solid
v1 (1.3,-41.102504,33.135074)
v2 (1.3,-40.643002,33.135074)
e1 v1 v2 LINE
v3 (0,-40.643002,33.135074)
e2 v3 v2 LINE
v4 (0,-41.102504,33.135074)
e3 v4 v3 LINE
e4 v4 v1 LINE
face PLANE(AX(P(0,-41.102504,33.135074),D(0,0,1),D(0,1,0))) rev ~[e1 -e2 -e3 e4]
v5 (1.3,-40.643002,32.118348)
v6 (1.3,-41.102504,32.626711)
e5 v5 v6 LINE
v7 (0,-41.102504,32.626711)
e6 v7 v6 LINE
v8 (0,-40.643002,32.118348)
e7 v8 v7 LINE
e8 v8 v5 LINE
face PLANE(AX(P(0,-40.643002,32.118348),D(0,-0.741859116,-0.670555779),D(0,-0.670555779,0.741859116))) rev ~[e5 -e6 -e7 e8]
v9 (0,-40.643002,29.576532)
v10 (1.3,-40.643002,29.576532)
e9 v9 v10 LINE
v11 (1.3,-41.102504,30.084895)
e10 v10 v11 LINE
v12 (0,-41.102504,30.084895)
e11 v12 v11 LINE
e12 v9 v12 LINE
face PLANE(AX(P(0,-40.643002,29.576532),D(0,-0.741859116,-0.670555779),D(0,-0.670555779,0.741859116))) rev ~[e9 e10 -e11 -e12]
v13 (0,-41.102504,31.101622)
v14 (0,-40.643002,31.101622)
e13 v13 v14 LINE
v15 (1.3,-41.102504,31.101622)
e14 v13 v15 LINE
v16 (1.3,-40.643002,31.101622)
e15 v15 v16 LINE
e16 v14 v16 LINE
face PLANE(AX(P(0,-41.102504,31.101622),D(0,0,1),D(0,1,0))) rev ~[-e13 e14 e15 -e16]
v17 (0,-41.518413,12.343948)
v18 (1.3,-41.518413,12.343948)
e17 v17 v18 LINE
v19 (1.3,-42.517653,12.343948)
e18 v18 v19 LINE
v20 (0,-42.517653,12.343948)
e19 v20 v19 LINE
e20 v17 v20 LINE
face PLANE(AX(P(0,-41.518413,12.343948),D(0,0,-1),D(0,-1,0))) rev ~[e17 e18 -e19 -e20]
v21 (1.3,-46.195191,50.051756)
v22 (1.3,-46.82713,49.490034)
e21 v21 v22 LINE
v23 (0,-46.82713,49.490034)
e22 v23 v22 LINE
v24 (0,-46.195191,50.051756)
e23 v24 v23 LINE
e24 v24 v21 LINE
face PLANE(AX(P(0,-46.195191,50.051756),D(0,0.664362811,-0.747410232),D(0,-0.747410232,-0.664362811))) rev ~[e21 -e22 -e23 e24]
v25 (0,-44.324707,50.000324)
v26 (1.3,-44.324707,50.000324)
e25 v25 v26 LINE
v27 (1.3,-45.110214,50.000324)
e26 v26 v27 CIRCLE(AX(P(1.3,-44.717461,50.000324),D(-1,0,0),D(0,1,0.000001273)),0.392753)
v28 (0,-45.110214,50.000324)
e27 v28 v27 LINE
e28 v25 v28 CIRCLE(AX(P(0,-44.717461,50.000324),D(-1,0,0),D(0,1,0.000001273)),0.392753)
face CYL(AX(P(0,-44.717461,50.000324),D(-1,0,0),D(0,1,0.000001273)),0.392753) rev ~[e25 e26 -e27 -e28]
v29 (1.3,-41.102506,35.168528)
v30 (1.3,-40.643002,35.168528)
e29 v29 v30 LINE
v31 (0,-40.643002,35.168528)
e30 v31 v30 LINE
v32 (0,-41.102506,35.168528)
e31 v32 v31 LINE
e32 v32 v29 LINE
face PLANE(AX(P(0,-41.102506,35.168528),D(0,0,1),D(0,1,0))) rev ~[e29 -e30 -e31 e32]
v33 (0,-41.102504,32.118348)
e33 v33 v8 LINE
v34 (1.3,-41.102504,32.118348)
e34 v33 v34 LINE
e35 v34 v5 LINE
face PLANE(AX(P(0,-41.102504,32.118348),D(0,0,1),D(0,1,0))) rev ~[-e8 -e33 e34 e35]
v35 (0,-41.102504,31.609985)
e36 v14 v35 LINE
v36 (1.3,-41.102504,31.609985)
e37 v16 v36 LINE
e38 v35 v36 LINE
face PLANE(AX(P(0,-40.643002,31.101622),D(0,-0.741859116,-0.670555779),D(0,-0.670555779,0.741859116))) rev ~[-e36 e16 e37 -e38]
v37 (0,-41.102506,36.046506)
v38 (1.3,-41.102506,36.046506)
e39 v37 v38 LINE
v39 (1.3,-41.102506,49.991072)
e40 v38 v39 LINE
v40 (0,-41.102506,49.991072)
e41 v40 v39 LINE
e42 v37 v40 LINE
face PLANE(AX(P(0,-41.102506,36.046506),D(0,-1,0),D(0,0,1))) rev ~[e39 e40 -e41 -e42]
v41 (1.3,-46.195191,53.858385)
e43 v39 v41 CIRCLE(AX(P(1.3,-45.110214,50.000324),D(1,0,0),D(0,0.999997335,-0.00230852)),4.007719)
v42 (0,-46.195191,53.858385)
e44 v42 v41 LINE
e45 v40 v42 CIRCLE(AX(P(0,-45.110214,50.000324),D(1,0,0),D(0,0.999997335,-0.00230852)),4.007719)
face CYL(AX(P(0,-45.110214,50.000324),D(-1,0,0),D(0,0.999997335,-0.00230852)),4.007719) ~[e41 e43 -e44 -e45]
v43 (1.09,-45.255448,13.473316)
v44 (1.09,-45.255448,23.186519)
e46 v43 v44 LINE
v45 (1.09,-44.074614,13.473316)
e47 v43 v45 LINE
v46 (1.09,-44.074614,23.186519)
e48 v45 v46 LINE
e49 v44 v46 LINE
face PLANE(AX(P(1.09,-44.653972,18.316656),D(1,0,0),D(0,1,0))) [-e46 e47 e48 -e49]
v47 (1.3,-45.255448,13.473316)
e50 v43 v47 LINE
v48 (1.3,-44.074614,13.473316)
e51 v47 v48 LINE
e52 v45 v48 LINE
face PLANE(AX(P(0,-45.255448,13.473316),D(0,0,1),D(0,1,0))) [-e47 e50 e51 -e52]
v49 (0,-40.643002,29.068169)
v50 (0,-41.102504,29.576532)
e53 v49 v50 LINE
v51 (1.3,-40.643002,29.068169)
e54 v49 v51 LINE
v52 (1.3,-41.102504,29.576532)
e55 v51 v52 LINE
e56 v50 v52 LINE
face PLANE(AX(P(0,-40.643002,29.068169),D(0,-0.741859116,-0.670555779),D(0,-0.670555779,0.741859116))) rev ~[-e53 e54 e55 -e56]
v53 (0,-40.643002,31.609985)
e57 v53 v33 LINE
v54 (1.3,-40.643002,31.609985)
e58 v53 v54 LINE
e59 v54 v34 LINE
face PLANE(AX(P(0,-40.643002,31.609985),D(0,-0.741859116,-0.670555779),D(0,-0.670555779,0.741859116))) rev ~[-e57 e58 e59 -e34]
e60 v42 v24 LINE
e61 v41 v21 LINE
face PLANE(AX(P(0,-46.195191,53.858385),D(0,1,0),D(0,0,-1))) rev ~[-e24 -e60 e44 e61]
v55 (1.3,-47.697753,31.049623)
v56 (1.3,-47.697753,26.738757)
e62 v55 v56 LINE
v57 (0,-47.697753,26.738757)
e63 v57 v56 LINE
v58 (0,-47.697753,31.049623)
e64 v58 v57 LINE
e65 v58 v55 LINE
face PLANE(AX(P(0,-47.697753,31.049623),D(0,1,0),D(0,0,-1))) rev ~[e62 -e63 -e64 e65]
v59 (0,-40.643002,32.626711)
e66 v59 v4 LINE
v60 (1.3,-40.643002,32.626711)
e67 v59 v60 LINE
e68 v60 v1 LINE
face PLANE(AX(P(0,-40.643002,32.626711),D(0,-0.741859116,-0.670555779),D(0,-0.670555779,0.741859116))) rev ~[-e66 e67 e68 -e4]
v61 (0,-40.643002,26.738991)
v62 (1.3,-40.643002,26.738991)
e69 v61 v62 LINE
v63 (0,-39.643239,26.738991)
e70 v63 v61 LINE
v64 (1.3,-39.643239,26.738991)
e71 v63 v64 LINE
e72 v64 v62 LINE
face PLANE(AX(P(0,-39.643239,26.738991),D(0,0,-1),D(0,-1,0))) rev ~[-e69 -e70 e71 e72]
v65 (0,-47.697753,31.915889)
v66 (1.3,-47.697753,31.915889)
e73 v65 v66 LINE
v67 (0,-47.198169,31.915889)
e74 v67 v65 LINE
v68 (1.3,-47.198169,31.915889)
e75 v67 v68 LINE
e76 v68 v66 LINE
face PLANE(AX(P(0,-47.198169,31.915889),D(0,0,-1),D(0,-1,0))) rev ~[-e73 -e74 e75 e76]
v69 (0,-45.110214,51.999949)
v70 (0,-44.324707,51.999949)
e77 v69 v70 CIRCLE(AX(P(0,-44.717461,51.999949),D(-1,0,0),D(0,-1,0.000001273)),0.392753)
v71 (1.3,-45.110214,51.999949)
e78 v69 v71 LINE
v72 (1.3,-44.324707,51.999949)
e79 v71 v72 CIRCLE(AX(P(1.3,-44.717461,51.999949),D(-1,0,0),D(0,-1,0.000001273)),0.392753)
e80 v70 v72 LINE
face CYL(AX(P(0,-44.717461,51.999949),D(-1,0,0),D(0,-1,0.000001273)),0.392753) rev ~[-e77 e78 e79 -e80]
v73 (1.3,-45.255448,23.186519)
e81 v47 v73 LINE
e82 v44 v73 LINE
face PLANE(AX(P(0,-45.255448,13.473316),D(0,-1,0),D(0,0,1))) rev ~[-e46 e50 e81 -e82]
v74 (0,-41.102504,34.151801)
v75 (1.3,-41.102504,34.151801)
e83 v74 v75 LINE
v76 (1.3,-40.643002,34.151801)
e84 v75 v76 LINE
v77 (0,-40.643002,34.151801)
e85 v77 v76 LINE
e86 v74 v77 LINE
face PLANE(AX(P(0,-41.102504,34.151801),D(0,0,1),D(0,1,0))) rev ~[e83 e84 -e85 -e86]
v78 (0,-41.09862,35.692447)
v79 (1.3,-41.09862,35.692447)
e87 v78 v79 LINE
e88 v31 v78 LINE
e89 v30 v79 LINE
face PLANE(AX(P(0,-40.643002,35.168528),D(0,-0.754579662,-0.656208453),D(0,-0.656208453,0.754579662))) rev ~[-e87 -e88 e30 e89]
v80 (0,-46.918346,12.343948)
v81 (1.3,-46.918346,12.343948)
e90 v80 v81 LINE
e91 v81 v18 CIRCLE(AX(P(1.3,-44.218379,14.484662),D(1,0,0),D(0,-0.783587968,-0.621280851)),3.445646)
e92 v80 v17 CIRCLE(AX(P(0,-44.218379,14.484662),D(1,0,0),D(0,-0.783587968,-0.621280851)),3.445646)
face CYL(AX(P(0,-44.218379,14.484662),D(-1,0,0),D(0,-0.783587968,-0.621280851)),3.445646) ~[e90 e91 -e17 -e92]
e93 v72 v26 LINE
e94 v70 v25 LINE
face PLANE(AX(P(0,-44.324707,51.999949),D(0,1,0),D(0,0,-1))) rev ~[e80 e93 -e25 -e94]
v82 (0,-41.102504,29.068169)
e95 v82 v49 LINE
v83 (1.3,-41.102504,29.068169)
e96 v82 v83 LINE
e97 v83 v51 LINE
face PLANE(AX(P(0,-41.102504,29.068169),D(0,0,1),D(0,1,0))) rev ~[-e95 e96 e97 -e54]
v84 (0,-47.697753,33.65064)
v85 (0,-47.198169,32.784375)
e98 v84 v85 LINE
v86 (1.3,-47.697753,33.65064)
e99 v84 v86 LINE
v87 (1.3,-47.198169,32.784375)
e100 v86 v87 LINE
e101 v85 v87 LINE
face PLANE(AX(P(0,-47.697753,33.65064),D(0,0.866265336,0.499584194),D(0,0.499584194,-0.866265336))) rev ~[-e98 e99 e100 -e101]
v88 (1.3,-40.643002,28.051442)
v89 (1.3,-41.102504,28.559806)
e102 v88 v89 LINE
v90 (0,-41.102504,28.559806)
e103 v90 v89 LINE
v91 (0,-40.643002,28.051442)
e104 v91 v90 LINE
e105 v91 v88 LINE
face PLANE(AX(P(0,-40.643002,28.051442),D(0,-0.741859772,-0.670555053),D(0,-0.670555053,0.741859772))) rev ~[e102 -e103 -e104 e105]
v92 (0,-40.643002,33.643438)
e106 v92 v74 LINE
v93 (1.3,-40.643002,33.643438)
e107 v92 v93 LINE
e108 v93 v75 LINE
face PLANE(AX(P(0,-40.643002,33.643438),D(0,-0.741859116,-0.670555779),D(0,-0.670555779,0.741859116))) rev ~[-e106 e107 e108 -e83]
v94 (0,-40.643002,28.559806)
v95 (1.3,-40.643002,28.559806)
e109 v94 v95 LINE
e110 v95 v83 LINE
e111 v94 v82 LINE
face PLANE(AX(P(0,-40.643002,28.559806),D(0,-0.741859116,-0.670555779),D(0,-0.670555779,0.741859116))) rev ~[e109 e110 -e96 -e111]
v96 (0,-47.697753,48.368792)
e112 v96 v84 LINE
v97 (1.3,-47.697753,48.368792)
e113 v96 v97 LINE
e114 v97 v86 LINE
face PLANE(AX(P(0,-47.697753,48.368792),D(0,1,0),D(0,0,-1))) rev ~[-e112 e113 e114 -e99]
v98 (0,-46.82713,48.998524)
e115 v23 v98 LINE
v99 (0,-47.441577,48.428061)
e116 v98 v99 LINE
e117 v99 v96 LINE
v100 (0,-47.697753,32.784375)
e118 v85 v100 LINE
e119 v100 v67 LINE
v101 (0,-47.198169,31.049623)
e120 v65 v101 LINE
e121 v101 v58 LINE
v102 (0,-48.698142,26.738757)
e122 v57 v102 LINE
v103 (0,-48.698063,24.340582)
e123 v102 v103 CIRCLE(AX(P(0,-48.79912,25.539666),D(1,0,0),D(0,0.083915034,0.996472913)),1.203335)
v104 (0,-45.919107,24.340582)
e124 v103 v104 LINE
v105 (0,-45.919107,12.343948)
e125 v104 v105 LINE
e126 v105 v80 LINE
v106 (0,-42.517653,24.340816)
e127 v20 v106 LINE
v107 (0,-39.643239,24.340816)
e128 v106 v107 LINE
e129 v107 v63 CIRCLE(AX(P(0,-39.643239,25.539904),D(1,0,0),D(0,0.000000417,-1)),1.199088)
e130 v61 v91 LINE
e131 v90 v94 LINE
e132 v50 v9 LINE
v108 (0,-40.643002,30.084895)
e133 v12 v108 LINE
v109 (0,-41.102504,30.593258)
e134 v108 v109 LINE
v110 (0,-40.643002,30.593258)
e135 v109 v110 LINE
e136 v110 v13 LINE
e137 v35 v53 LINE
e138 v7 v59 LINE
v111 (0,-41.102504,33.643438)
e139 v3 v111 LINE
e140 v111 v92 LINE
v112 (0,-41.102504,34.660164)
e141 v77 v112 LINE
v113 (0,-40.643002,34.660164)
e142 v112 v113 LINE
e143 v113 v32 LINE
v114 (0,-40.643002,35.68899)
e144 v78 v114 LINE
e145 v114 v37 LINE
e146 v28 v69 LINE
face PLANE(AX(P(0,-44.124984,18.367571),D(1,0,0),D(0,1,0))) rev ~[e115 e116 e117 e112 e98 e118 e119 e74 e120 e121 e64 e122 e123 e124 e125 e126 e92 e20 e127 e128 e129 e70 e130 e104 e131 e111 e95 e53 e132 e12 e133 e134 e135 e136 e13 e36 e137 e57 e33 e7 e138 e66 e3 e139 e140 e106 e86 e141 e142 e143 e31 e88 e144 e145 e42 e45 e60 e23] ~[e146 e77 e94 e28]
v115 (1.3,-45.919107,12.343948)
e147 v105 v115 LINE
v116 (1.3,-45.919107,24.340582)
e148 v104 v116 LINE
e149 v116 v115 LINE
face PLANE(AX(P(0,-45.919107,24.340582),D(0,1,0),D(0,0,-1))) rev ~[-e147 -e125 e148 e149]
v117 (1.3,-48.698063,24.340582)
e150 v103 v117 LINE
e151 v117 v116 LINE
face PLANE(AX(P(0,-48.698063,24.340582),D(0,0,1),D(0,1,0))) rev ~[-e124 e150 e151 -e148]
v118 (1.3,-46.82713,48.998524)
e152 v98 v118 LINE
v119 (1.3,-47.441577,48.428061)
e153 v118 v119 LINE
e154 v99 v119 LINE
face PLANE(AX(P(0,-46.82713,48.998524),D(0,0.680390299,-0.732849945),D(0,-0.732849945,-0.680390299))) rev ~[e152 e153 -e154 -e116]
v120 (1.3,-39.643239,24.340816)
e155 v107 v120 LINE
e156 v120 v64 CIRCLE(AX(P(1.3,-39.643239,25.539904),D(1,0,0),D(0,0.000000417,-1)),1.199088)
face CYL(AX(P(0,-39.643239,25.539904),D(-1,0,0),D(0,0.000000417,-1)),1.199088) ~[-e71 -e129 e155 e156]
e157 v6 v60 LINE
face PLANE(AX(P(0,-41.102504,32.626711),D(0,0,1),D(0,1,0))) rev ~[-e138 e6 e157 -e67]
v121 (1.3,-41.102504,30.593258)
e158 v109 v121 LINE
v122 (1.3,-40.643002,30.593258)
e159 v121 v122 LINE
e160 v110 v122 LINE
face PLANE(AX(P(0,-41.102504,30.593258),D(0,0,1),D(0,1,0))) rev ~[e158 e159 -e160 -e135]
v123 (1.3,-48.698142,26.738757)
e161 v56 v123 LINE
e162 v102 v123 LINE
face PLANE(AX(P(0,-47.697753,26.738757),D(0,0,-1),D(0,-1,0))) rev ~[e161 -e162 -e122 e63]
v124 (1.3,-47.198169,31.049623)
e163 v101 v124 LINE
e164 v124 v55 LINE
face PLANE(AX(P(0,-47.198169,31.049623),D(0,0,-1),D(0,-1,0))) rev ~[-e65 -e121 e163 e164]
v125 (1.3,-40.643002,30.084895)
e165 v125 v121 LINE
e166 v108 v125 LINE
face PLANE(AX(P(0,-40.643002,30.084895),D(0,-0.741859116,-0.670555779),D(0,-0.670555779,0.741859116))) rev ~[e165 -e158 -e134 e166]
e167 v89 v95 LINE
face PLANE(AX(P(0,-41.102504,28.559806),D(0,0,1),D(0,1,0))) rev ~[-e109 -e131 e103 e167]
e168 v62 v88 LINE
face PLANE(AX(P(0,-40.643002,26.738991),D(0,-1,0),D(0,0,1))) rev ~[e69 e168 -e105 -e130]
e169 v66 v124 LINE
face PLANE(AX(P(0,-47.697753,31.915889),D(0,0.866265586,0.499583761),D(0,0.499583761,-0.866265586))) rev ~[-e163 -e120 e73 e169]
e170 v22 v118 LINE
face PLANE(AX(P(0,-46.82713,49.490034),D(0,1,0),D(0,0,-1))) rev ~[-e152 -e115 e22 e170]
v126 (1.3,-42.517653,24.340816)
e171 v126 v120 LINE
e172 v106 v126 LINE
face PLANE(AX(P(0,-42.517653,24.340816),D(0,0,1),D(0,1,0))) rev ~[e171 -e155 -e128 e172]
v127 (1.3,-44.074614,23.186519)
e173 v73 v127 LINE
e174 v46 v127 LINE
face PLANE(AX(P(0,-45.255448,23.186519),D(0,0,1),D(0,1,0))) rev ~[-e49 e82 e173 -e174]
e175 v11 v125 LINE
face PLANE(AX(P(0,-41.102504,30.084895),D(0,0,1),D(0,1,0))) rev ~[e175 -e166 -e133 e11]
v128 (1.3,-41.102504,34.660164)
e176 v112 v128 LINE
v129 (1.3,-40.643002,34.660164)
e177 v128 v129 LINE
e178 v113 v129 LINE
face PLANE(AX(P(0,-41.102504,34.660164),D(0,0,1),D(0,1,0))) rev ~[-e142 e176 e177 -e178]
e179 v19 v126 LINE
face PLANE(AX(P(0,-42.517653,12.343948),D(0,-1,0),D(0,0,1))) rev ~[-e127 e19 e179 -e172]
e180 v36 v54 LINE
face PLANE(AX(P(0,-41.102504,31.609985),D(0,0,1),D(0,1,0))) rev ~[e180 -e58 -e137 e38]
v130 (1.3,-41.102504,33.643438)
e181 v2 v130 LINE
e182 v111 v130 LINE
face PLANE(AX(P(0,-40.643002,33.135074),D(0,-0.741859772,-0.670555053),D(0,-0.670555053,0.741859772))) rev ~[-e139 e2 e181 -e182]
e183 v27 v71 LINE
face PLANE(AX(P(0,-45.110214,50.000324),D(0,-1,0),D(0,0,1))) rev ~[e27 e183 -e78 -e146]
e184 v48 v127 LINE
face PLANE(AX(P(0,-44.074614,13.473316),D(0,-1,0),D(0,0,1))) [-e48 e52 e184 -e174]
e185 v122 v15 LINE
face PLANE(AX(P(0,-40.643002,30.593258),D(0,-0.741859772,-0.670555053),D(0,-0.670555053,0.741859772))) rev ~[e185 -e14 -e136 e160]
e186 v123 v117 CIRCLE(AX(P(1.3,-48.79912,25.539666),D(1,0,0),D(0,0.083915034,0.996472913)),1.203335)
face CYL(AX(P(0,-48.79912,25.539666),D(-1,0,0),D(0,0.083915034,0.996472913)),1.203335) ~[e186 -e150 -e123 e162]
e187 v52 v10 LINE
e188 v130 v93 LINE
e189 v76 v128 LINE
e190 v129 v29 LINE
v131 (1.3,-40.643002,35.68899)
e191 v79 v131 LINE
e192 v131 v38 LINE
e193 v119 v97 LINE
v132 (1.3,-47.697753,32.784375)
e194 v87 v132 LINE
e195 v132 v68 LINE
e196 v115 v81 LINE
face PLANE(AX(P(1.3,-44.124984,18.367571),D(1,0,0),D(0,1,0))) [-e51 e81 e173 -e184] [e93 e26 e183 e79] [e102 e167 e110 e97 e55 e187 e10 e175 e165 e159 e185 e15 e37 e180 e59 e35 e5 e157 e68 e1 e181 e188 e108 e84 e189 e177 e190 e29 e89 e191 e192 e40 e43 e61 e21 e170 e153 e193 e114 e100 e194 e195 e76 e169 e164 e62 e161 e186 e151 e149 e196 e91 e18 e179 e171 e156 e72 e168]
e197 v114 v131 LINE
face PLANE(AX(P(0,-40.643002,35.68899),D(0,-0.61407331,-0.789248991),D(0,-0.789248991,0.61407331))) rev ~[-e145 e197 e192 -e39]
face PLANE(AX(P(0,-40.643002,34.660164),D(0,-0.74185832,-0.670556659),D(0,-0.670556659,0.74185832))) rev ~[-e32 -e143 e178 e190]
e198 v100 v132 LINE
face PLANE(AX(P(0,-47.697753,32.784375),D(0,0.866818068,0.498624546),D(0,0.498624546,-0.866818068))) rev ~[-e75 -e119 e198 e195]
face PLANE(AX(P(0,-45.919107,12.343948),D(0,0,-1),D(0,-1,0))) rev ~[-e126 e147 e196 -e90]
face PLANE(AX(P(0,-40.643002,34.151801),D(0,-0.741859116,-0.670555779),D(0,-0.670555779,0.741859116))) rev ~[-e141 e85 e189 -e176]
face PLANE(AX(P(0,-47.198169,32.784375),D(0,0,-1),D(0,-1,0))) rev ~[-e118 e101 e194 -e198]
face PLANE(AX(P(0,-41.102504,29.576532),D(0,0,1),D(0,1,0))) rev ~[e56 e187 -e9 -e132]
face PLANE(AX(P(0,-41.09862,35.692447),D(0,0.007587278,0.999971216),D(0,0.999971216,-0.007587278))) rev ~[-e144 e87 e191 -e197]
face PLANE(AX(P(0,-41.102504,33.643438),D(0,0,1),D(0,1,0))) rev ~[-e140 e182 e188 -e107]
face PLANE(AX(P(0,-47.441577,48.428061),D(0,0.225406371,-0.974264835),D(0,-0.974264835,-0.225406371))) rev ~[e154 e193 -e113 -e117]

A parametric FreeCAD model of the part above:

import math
import FreeCAD as App
import Part
import Sketcher
from FreeCAD import Vector
Q = App.Units.Quantity


def add_polygon(sketch, points):
    """Adds a closed chain of lines whose ends are joined by coincident constraints."""
    first, n = sketch.GeometryCount, len(points)
    for a, b in zip(points, points[1:] + points[:1]):
        sketch.addGeometry(Part.LineSegment(App.Vector(*a, 0), App.Vector(*b, 0)), False)
    for i in range(n):
        sketch.addConstraint(Sketcher.Constraint("Coincident", first + i, 2, first + (i + 1) % n, 1))

doc = App.newDocument("Part")
body = doc.addObject("PartDesign::Body", "Body")

sketch1 = body.newObject("Sketcher::SketchObject", "Sketch")
sketch1.AttachmentSupport = (doc.getObject("YZ_Plane"), [""])
sketch1.MapMode = "FlatFace"
sketch1.addGeometry(Part.LineSegment(Vector(-42.517653, 24.340816, 0), Vector(-39.643239, 24.340816, 0)), False)
sketch1.addGeometry(Part.ArcOfCircle(Part.Circle(Vector(-39.643239, 25.539904, 0), Vector(0, 0, 1), 1.199088), math.radians(-89.999976), math.radians(89.999976)), False)
sketch1.addGeometry(Part.LineSegment(Vector(-39.643239, 26.738991, 0), Vector(-40.643002, 26.738991, 0)), False)
sketch1.addGeometry(Part.LineSegment(Vector(-40.643002, 26.738991, 0), Vector(-40.643002, 28.051442, 0)), False)
sketch1.addGeometry(Part.LineSegment(Vector(-40.643002, 28.051442, 0), Vector(-41.102504, 28.559806, 0)), False)
sketch1.addGeometry(Part.LineSegment(Vector(-41.102504, 28.559806, 0), Vector(-40.643002, 28.559806, 0)), False)
sketch1.addGeometry(Part.LineSegment(Vector(-40.643002, 28.559806, 0), Vector(-41.102504, 29.068169, 0)), False)
sketch1.addGeometry(Part.LineSegment(Vector(-41.102504, 29.068169, 0), Vector(-40.643002, 29.068169, 0)), False)
sketch1.addGeometry(Part.LineSegment(Vector(-40.643002, 29.068169, 0), Vector(-41.102504, 29.576532, 0)), False)
sketch1.addGeometry(Part.LineSegment(Vector(-41.102504, 29.576532, 0), Vector(-40.643002, 29.576532, 0)), False)
sketch1.addGeometry(Part.LineSegment(Vector(-40.643002, 29.576532, 0), Vector(-41.102504, 30.084895, 0)), False)
sketch1.addGeometry(Part.LineSegment(Vector(-41.102504, 30.084895, 0), Vector(-40.643002, 30.084895, 0)), False)
sketch1.addGeometry(Part.LineSegment(Vector(-40.643002, 30.084895, 0), Vector(-41.102504, 30.593258, 0)), False)
sketch1.addGeometry(Part.LineSegment(Vector(-41.102504, 30.593258, 0), Vector(-40.643002, 30.593258, 0)), False)
sketch1.addGeometry(Part.LineSegment(Vector(-40.643002, 30.593258, 0), Vector(-41.102504, 31.101622, 0)), False)
sketch1.addGeometry(Part.LineSegment(Vector(-41.102504, 31.101622, 0), Vector(-40.643002, 31.101622, 0)), False)
sketch1.addGeometry(Part.LineSegment(Vector(-40.643002, 31.101622, 0), Vector(-41.102504, 31.609985, 0)), False)
sketch1.addGeometry(Part.LineSegment(Vector(-41.102504, 31.609985, 0), Vector(-40.643002, 31.609985, 0)), False)
sketch1.addGeometry(Part.LineSegment(Vector(-40.643002, 31.609985, 0), Vector(-41.102504, 32.118348, 0)), False)
sketch1.addGeometry(Part.LineSegment(Vector(-41.102504, 32.118348, 0), Vector(-40.643002, 32.118348, 0)), False)
sketch1.addGeometry(Part.LineSegment(Vector(-40.643002, 32.118348, 0), Vector(-41.102504, 32.626711, 0)), False)
sketch1.addGeometry(Part.LineSegment(Vector(-41.102504, 32.626711, 0), Vector(-40.643002, 32.626711, 0)), False)
sketch1.addGeometry(Part.LineSegment(Vector(-40.643002, 32.626711, 0), Vector(-41.102504, 33.135074, 0)), False)
sketch1.addGeometry(Part.LineSegment(Vector(-41.102504, 33.135074, 0), Vector(-40.643002, 33.135074, 0)), False)
sketch1.addGeometry(Part.LineSegment(Vector(-40.643002, 33.135074, 0), Vector(-41.102504, 33.643438, 0)), False)
sketch1.addGeometry(Part.LineSegment(Vector(-41.102504, 33.643438, 0), Vector(-40.643002, 33.643438, 0)), False)
sketch1.addGeometry(Part.LineSegment(Vector(-40.643002, 33.643438, 0), Vector(-41.102504, 34.151801, 0)), False)
sketch1.addGeometry(Part.LineSegment(Vector(-41.102504, 34.151801, 0), Vector(-40.643002, 34.151801, 0)), False)
sketch1.addGeometry(Part.LineSegment(Vector(-40.643002, 34.151801, 0), Vector(-41.102504, 34.660164, 0)), False)
sketch1.addGeometry(Part.LineSegment(Vector(-41.102504, 34.660164, 0), Vector(-40.643002, 34.660164, 0)), False)
sketch1.addGeometry(Part.LineSegment(Vector(-40.643002, 34.660164, 0), Vector(-41.102506, 35.168528, 0)), False)
sketch1.addGeometry(Part.LineSegment(Vector(-41.102506, 35.168528, 0), Vector(-40.643002, 35.168528, 0)), False)
sketch1.addGeometry(Part.LineSegment(Vector(-40.643002, 35.168528, 0), Vector(-41.09862, 35.692447, 0)), False)
sketch1.addGeometry(Part.LineSegment(Vector(-41.09862, 35.692447, 0), Vector(-40.643002, 35.68899, 0)), False)
sketch1.addGeometry(Part.LineSegment(Vector(-40.643002, 35.68899, 0), Vector(-41.102506, 36.046506, 0)), False)
sketch1.addGeometry(Part.LineSegment(Vector(-41.102506, 36.046506, 0), Vector(-41.102506, 49.991072, 0)), False)
sketch1.addGeometry(Part.ArcOfCircle(Part.Circle(Vector(-45.110214, 50.000324, 0), Vector(0, 0, 1), 4.007719), math.radians(-0.132269), math.radians(105.707223)), False)
sketch1.addGeometry(Part.LineSegment(Vector(-46.195191, 53.858385, 0), Vector(-46.195191, 50.051756, 0)), False)
sketch1.addGeometry(Part.LineSegment(Vector(-46.195191, 50.051756, 0), Vector(-46.82713, 49.490034, 0)), False)
sketch1.addGeometry(Part.LineSegment(Vector(-46.82713, 49.490034, 0), Vector(-46.82713, 48.998524, 0)), False)
sketch1.addGeometry(Part.LineSegment(Vector(-46.82713, 48.998524, 0), Vector(-47.441577, 48.428061, 0)), False)
sketch1.addGeometry(Part.LineSegment(Vector(-47.441577, 48.428061, 0), Vector(-47.697753, 48.368792, 0)), False)
sketch1.addGeometry(Part.LineSegment(Vector(-47.697753, 48.368792, 0), Vector(-47.697753, 33.65064, 0)), False)
sketch1.addGeometry(Part.LineSegment(Vector(-47.697753, 33.65064, 0), Vector(-47.198169, 32.784375, 0)), False)
sketch1.addGeometry(Part.LineSegment(Vector(-47.198169, 32.784375, 0), Vector(-47.697753, 32.784375, 0)), False)
sketch1.addGeometry(Part.LineSegment(Vector(-47.697753, 32.784375, 0), Vector(-47.198169, 31.915889, 0)), False)
sketch1.addGeometry(Part.LineSegment(Vector(-47.198169, 31.915889, 0), Vector(-47.697753, 31.915889, 0)), False)
sketch1.addGeometry(Part.LineSegment(Vector(-47.697753, 31.915889, 0), Vector(-47.198169, 31.049623, 0)), False)
sketch1.addGeometry(Part.LineSegment(Vector(-47.198169, 31.049623, 0), Vector(-47.697753, 31.049623, 0)), False)
sketch1.addGeometry(Part.LineSegment(Vector(-47.697753, 31.049623, 0), Vector(-47.697753, 26.738757, 0)), False)
sketch1.addGeometry(Part.LineSegment(Vector(-47.697753, 26.738757, 0), Vector(-48.698142, 26.738757, 0)), False)
sketch1.addGeometry(Part.ArcOfCircle(Part.Circle(Vector(-48.79912, 25.539666, 0), Vector(0, 0, 1), 1.203335), math.radians(85.186362), math.radians(274.817413)), False)
sketch1.addGeometry(Part.LineSegment(Vector(-48.698063, 24.340582, 0), Vector(-45.919107, 24.340582, 0)), False)
sketch1.addGeometry(Part.LineSegment(Vector(-45.919107, 24.340582, 0), Vector(-45.919107, 12.343948, 0)), False)
sketch1.addGeometry(Part.LineSegment(Vector(-45.919107, 12.343948, 0), Vector(-46.918346, 12.343948, 0)), False)
sketch1.addGeometry(Part.ArcOfCircle(Part.Circle(Vector(-44.218379, 14.484662, 0), Vector(0, 0, 1), 3.445646), math.radians(-141.590271), math.radians(-38.409729)), False)
sketch1.addGeometry(Part.LineSegment(Vector(-41.518413, 12.343948, 0), Vector(-42.517653, 12.343948, 0)), False)
sketch1.addGeometry(Part.LineSegment(Vector(-42.517653, 12.343948, 0), Vector(-42.517653, 24.340816, 0)), False)
add_polygon(sketch1, [(-44.074614, 13.473316), (-45.255448, 13.473316), (-45.255448, 23.186519), (-44.074614, 23.186519)])
sketch1.addGeometry(Part.LineSegment(Vector(-44.324707, 51.999949, 0), Vector(-44.324707, 50.000324, 0)), False)
sketch1.addGeometry(Part.ArcOfCircle(Part.Circle(Vector(-44.717461, 50.000324, 0), Vector(0, 0, 1), 0.392753), math.radians(179.999927), math.radians(360.000073)), False)
sketch1.addGeometry(Part.LineSegment(Vector(-45.110214, 50.000324, 0), Vector(-45.110214, 51.999949, 0)), False)
sketch1.addGeometry(Part.ArcOfCircle(Part.Circle(Vector(-44.717461, 51.999949, 0), Vector(0, 0, 1), 0.392753), math.radians(0.000073), math.radians(179.999927)), False)
sketch1.addConstraint([
    Sketcher.Constraint("Tangent", 0, 2, 1, 1),
    Sketcher.Constraint("Tangent", 1, 2, 2, 1),
    Sketcher.Constraint("Coincident", 2, 2, 3, 1),
    Sketcher.Constraint("Coincident", 3, 2, 4, 1),
    Sketcher.Constraint("Coincident", 4, 2, 5, 1),
    Sketcher.Constraint("Coincident", 5, 2, 6, 1),
    Sketcher.Constraint("Coincident", 6, 2, 7, 1),
    Sketcher.Constraint("Coincident", 7, 2, 8, 1),
    Sketcher.Constraint("Coincident", 8, 2, 9, 1),
    Sketcher.Constraint("Coincident", 9, 2, 10, 1),
    Sketcher.Constraint("Coincident", 10, 2, 11, 1),
    Sketcher.Constraint("Coincident", 11, 2, 12, 1),
    Sketcher.Constraint("Coincident", 12, 2, 13, 1),
    Sketcher.Constraint("Coincident", 13, 2, 14, 1),
    Sketcher.Constraint("Coincident", 14, 2, 15, 1),
    Sketcher.Constraint("Coincident", 15, 2, 16, 1),
    Sketcher.Constraint("Coincident", 16, 2, 17, 1),
    Sketcher.Constraint("Coincident", 17, 2, 18, 1),
    Sketcher.Constraint("Coincident", 18, 2, 19, 1),
    Sketcher.Constraint("Coincident", 19, 2, 20, 1),
    Sketcher.Constraint("Coincident", 20, 2, 21, 1),
    Sketcher.Constraint("Coincident", 21, 2, 22, 1),
    Sketcher.Constraint("Coincident", 22, 2, 23, 1),
    Sketcher.Constraint("Coincident", 23, 2, 24, 1),
    Sketcher.Constraint("Coincident", 24, 2, 25, 1),
    Sketcher.Constraint("Coincident", 25, 2, 26, 1),
    Sketcher.Constraint("Coincident", 26, 2, 27, 1),
    Sketcher.Constraint("Coincident", 27, 2, 28, 1),
    Sketcher.Constraint("Coincident", 28, 2, 29, 1),
    Sketcher.Constraint("Coincident", 29, 2, 30, 1),
    Sketcher.Constraint("Coincident", 30, 2, 31, 1),
    Sketcher.Constraint("Coincident", 31, 2, 32, 1),
    Sketcher.Constraint("Coincident", 32, 2, 33, 1),
    Sketcher.Constraint("Coincident", 33, 2, 34, 1),
    Sketcher.Constraint("Coincident", 34, 2, 35, 1),
    Sketcher.Constraint("Coincident", 35, 2, 36, 1),
    Sketcher.Constraint("Coincident", 36, 2, 37, 1),
    Sketcher.Constraint("Coincident", 37, 2, 38, 1),
    Sketcher.Constraint("Coincident", 38, 2, 39, 1),
    Sketcher.Constraint("Coincident", 39, 2, 40, 1),
    Sketcher.Constraint("Coincident", 40, 2, 41, 1),
    Sketcher.Constraint("Coincident", 41, 2, 42, 1),
    Sketcher.Constraint("Coincident", 42, 2, 43, 1),
    Sketcher.Constraint("Coincident", 43, 2, 44, 1),
    Sketcher.Constraint("Coincident", 44, 2, 45, 1),
    Sketcher.Constraint("Coincident", 45, 2, 46, 1),
    Sketcher.Constraint("Coincident", 46, 2, 47, 1),
    Sketcher.Constraint("Coincident", 47, 2, 48, 1),
    Sketcher.Constraint("Coincident", 48, 2, 49, 1),
    Sketcher.Constraint("Coincident", 49, 2, 50, 1),
    Sketcher.Constraint("Coincident", 50, 2, 51, 1),
    Sketcher.Constraint("Coincident", 51, 2, 52, 1),
    Sketcher.Constraint("Coincident", 52, 2, 53, 1),
    Sketcher.Constraint("Coincident", 53, 2, 54, 1),
    Sketcher.Constraint("Coincident", 54, 2, 55, 1),
    Sketcher.Constraint("Coincident", 55, 2, 56, 1),
    Sketcher.Constraint("Coincident", 56, 2, 57, 1),
    Sketcher.Constraint("Coincident", 57, 2, 0, 1),
    Sketcher.Constraint("Tangent", 62, 2, 63, 2),
    Sketcher.Constraint("Tangent", 63, 1, 64, 1),
    Sketcher.Constraint("Tangent", 64, 2, 65, 2),
    Sketcher.Constraint("Tangent", 65, 1, 62, 1),
    Sketcher.Constraint("Horizontal", 0),
    Sketcher.Constraint("Horizontal", 2),
    Sketcher.Constraint("Vertical", 3),
    Sketcher.Constraint("Horizontal", 5),
    Sketcher.Constraint("Horizontal", 7),
    Sketcher.Constraint("Horizontal", 9),
    Sketcher.Constraint("Horizontal", 11),
    Sketcher.Constraint("Horizontal", 13),
    Sketcher.Constraint("Horizontal", 15),
    Sketcher.Constraint("Horizontal", 17),
    Sketcher.Constraint("Horizontal", 19),
    Sketcher.Constraint("Horizontal", 21),
    Sketcher.Constraint("Horizontal", 23),
    Sketcher.Constraint("Horizontal", 25),
    Sketcher.Constraint("Horizontal", 27),
    Sketcher.Constraint("Horizontal", 29),
    Sketcher.Constraint("Horizontal", 31),
    Sketcher.Constraint("Vertical", 35),
    Sketcher.Constraint("Vertical", 37),
    Sketcher.Constraint("Vertical", 39),
    Sketcher.Constraint("Vertical", 42),
    Sketcher.Constraint("Horizontal", 44),
    Sketcher.Constraint("Horizontal", 46),
    Sketcher.Constraint("Horizontal", 48),
    Sketcher.Constraint("Vertical", 49),
    Sketcher.Constraint("Horizontal", 50),
    Sketcher.Constraint("Horizontal", 52),
    Sketcher.Constraint("Vertical", 53),
    Sketcher.Constraint("Horizontal", 54),
    Sketcher.Constraint("Horizontal", 56),
    Sketcher.Constraint("Vertical", 57),
    Sketcher.Constraint("Horizontal", 58),
    Sketcher.Constraint("Vertical", 59),
    Sketcher.Constraint("Horizontal", 60),
    Sketcher.Constraint("Vertical", 61),
    Sketcher.Constraint("Vertical", 62),
    Sketcher.Constraint("Vertical", 64),
    Sketcher.Constraint("Coincident", 63, 1, 36, 3),
    Sketcher.Constraint("Parallel", 4, 6),
    Sketcher.Constraint("Parallel", 6, 8),
    Sketcher.Constraint("Parallel", 8, 10),
    Sketcher.Constraint("Parallel", 10, 12),
    Sketcher.Constraint("Parallel", 12, 14),
    Sketcher.Constraint("Parallel", 14, 16),
    Sketcher.Constraint("Parallel", 16, 18),
    Sketcher.Constraint("Parallel", 18, 20),
    Sketcher.Constraint("Parallel", 20, 22),
    Sketcher.Constraint("Parallel", 22, 24),
    Sketcher.Constraint("Parallel", 24, 26),
    Sketcher.Constraint("Parallel", 26, 28),
    Sketcher.Constraint("Parallel", 28, 30),
    Sketcher.Constraint("Parallel", 43, 47),
    Sketcher.Constraint("Horizontal", 54, 2, 55, 2),
    Sketcher.Constraint("Vertical", 3, 2, 5, 2),
    Sketcher.Constraint("Vertical", 4, 2, 6, 2),
    Sketcher.Constraint("Vertical", 5, 2, 7, 2),
    Sketcher.Constraint("Vertical", 6, 2, 8, 2),
    Sketcher.Constraint("Vertical", 7, 2, 9, 2),
    Sketcher.Constraint("Vertical", 8, 2, 10, 2),
    Sketcher.Constraint("Vertical", 9, 2, 11, 2),
    Sketcher.Constraint("Vertical", 10, 2, 12, 2),
    Sketcher.Constraint("Vertical", 11, 2, 13, 2),
    Sketcher.Constraint("Vertical", 12, 2, 14, 2),
    Sketcher.Constraint("Vertical", 13, 2, 15, 2),
    Sketcher.Constraint("Vertical", 14, 2, 16, 2),
    Sketcher.Constraint("Vertical", 15, 2, 17, 2),
    Sketcher.Constraint("Vertical", 16, 2, 18, 2),
    Sketcher.Constraint("Vertical", 17, 2, 19, 2),
    Sketcher.Constraint("Vertical", 18, 2, 20, 2),
    Sketcher.Constraint("Vertical", 19, 2, 21, 2),
    Sketcher.Constraint("Vertical", 20, 2, 22, 2),
    Sketcher.Constraint("Vertical", 21, 2, 23, 2),
    Sketcher.Constraint("Vertical", 22, 2, 24, 2),
    Sketcher.Constraint("Vertical", 23, 2, 25, 2),
    Sketcher.Constraint("Vertical", 24, 2, 26, 2),
    Sketcher.Constraint("Vertical", 25, 2, 27, 2),
    Sketcher.Constraint("Vertical", 26, 2, 28, 2),
    Sketcher.Constraint("Vertical", 27, 2, 29, 2),
    Sketcher.Constraint("Vertical", 28, 2, 30, 2),
    Sketcher.Constraint("Vertical", 29, 2, 31, 2),
    Sketcher.Constraint("Vertical", 31, 2, 33, 2),
    Sketcher.Constraint("Vertical", 30, 2, 34, 2),
    Sketcher.Constraint("Vertical", 42, 2, 44, 2),
    Sketcher.Constraint("Vertical", 43, 2, 45, 2),
    Sketcher.Constraint("Vertical", 44, 2, 46, 2),
    Sketcher.Constraint("Vertical", 45, 2, 47, 2),
    Sketcher.Constraint("Vertical", 46, 2, 48, 2),
    Sketcher.Constraint("Equal", 54, 56),
    Sketcher.Constraint("Distance", 43, Q("1 mm")),
    Sketcher.Constraint("Radius", 36, Q("4.007719 mm")),
    Sketcher.Constraint("Radius", 1, Q("1.199088 mm")),
    Sketcher.Constraint("Radius", 51, Q("1.203335 mm")),
    Sketcher.Constraint("Radius", 55, Q("3.445646 mm")),
    Sketcher.Constraint("Radius", 63, Q("0.392753 mm")),
    Sketcher.Constraint("DistanceX", 50, 2, 50, 1, Q("1.000389 mm")),
    Sketcher.Constraint("DistanceX", 54, 2, 54, 1, Q("0.999239 mm")),
    Sketcher.Constraint("DistanceY", 3, 1, 3, 2, Q("1.312451 mm")),
    Sketcher.Constraint("DistanceY", 37, 2, 37, 1, Q("3.806629 mm")),
    Sketcher.Constraint("DistanceY", 39, 2, 39, 1, Q("0.49151 mm")),
    Sketcher.Constraint("DistanceY", 42, 2, 42, 1, Q("14.718152 mm")),
    Sketcher.Constraint("DistanceY", 57, 1, 57, 2, Q("11.996868 mm")),
    Sketcher.Constraint("DistanceY", -1, 1, 26, 2, Q("34.151801 mm")),
    Sketcher.Constraint("Distance", 32, Q("0.694319 mm")),
    Sketcher.Constraint("Distance", 33, Q("0.455631 mm")),
    Sketcher.Constraint("DistanceX", 0, 1, 0, 2, Q("2.874414 mm")),
    Sketcher.Constraint("DistanceX", 2, 2, 2, 1, Q("0.999763 mm")),
    Sketcher.Constraint("DistanceX", 5, 1, 5, 2, Q("0.459502 mm")),
    Sketcher.Constraint("DistanceX", 44, 2, 44, 1, Q("0.499584 mm")),
    Sketcher.Constraint("DistanceX", 52, 1, 52, 2, Q("2.778956 mm")),
    Sketcher.Constraint("DistanceX", 58, 2, 58, 1, Q("1.180834 mm")),
    Sketcher.Constraint("DistanceY", 35, 1, 35, 2, Q("13.944566 mm")),
    Sketcher.Constraint("DistanceY", 49, 2, 49, 1, Q("4.310866 mm")),
    Sketcher.Constraint("DistanceY", 53, 2, 53, 1, Q("11.996634 mm")),
    Sketcher.Constraint("DistanceY", 59, 1, 59, 2, Q("9.713203 mm")),
    Sketcher.Constraint("DistanceY", 62, 2, 62, 1, Q("1.999625 mm")),
    Sketcher.Constraint("DistanceX", 1, 3, -1, 1, Q("39.643239 mm")),
    Sketcher.Constraint("DistanceX", 51, 3, -1, 1, Q("48.79912 mm")),
    Sketcher.Constraint("DistanceX", 55, 3, -1, 1, Q("44.218379 mm")),
    Sketcher.Constraint("DistanceY", -1, 1, 55, 3, Q("14.484662 mm")),
    Sketcher.Constraint("DistanceY", -1, 1, 65, 3, Q("51.999949 mm")),
    Sketcher.Constraint("DistanceX", 32, 2, -1, 1, Q("41.09862 mm")),
    Sketcher.Constraint("DistanceX", 36, 2, -1, 1, Q("46.195191 mm")),
    Sketcher.Constraint("DistanceX", 38, 2, -1, 1, Q("46.82713 mm")),
    Sketcher.Constraint("DistanceY", -1, 1, 40, 2, Q("48.428061 mm")),
    Sketcher.Constraint("DistanceY", -1, 1, 42, 2, Q("33.65064 mm")),
    Sketcher.Constraint("DistanceX", 43, 2, -1, 1, Q("47.198169 mm")),
    Sketcher.Constraint("DistanceY", -1, 1, 59, 2, Q("23.186519 mm")),
    Sketcher.Constraint("Distance", 34, Q("0.582204 mm")),
    Sketcher.Constraint("Distance", 38, Q("0.845505 mm")),
    Sketcher.Constraint("Distance", 40, Q("0.838435 mm")),
    Sketcher.Constraint("DistanceX", 58, 2, -1, 1, Q("45.255448 mm")),
])
pad1 = body.newObject("PartDesign::Pad", "Pad")
pad1.Profile = sketch1
pad1.Length = 1.3

sketch2 = body.newObject("Sketcher::SketchObject", "Sketch001")
sketch2.AttachmentSupport = (doc.getObject("YZ_Plane"), [""])
sketch2.MapMode = "FlatFace"
add_polygon(sketch2, [(-45.3, 23.3), (-45.3, 13.3), (-44, 13.3), (-44, 23.3)])
sketch2.addConstraint([
    Sketcher.Constraint("Vertical", 0),
    Sketcher.Constraint("Horizontal", 1),
    Sketcher.Constraint("Vertical", 2),
    Sketcher.Constraint("Horizontal", 3),
    Sketcher.Constraint("DistanceX", 1, 1, 1, 2, Q("1.340505 mm")),
    Sketcher.Constraint("DistanceY", 0, 2, 0, 1, Q("10.058258 mm")),
    Sketcher.Constraint("DistanceX", 1, 2, -1, 1, Q("43.983719 mm")),
    Sketcher.Constraint("DistanceY", -1, 1, 0, 2, Q("13.287527 mm")),
])
pad2 = body.newObject("PartDesign::Pad", "Pad001")
pad2.Profile = sketch2
pad2.Length = 1.09

doc.recompute()
